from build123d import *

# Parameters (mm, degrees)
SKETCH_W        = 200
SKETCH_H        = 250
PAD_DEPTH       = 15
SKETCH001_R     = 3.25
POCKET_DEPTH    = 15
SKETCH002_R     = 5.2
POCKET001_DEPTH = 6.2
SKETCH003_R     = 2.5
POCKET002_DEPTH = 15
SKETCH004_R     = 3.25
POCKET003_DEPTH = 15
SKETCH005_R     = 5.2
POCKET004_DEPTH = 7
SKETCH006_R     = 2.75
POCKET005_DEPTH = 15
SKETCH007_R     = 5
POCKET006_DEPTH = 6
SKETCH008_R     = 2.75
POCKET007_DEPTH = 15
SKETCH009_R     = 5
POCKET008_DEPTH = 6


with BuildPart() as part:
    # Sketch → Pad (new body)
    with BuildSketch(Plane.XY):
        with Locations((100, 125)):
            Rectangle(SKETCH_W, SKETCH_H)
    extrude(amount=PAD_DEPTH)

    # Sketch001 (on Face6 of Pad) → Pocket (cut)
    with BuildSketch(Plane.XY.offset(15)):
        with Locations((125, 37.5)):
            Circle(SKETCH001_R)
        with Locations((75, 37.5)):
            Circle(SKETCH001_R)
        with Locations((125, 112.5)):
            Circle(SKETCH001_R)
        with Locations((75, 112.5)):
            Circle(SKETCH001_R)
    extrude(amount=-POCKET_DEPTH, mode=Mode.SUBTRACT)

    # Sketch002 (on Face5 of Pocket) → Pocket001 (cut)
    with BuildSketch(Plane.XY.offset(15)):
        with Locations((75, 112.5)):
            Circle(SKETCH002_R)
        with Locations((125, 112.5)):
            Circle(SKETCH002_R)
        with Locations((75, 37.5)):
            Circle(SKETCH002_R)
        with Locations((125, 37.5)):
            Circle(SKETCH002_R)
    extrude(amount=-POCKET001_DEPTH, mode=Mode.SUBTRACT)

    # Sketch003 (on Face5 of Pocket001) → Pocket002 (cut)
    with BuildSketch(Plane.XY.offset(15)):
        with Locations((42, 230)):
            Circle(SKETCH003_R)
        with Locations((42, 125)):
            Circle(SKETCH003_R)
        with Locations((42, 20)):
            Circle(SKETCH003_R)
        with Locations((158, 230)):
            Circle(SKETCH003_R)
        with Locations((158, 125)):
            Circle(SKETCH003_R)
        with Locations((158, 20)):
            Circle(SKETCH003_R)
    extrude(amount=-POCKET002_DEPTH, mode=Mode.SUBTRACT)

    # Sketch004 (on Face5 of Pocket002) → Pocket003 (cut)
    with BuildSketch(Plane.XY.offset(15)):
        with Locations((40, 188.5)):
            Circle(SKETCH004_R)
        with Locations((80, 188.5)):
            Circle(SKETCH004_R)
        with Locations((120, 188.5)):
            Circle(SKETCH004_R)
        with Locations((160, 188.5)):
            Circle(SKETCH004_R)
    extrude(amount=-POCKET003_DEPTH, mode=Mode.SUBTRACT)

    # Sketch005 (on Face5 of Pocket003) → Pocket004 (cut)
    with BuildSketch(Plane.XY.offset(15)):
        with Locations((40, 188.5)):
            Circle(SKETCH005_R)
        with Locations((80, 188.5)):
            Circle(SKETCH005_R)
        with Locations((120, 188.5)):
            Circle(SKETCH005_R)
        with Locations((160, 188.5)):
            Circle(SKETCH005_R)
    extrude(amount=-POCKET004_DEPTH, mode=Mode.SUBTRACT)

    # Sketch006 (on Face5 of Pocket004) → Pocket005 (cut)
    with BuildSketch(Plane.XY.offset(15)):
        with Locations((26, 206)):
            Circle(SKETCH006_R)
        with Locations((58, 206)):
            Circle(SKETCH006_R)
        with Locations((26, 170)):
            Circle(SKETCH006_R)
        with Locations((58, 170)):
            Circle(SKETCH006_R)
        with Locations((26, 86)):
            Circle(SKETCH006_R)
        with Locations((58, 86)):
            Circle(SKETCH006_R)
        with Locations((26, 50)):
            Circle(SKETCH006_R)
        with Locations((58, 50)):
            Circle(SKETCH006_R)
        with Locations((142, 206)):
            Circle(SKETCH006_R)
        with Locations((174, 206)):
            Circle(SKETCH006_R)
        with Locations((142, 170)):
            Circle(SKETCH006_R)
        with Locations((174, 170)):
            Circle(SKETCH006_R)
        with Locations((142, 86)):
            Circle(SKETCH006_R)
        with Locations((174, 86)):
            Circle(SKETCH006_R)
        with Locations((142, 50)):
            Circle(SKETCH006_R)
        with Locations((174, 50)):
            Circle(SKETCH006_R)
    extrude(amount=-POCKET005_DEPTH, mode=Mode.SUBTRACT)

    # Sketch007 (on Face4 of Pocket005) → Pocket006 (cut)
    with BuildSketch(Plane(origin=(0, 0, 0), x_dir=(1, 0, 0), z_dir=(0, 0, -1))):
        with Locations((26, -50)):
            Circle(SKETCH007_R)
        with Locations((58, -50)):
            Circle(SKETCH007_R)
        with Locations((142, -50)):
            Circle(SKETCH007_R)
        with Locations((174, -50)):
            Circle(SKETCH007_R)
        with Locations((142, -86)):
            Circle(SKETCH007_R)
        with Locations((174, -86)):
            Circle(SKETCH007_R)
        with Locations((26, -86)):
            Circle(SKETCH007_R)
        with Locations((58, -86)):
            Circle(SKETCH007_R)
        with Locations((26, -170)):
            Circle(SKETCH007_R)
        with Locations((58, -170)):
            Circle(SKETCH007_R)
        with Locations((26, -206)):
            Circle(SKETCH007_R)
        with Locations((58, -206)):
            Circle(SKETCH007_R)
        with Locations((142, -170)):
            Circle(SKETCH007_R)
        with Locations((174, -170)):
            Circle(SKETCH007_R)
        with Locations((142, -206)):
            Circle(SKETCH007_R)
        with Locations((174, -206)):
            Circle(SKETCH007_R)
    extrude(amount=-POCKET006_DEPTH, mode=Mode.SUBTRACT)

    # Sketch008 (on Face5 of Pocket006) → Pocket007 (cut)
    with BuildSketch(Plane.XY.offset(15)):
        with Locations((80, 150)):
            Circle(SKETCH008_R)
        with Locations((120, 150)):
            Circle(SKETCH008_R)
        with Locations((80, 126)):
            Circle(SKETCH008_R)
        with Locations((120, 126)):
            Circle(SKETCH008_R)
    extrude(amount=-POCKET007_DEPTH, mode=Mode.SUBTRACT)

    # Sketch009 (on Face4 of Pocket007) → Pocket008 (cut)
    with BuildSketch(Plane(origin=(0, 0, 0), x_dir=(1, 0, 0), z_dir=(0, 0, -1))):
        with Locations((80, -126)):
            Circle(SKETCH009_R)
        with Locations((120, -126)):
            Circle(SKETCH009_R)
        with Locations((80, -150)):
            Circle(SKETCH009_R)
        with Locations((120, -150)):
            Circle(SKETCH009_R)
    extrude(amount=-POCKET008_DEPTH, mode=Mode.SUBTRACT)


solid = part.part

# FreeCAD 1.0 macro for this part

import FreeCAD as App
import Part
import Sketcher


def add_polygon(sketch, points):
    """Adds a closed chain of lines whose ends are joined by coincident constraints."""
    first, n = sketch.GeometryCount, len(points)
    for a, b in zip(points, points[1:] + points[:1]):
        sketch.addGeometry(Part.LineSegment(App.Vector(*a, 0), App.Vector(*b, 0)), False)
    for i in range(n):
        sketch.addConstraint(Sketcher.Constraint("Coincident", first + i, 2, first + (i + 1) % n, 1))

doc = App.newDocument("Part")
body = doc.addObject("PartDesign::Body", "Body")

# Sketch on XY plane
sketch1 = doc.addObject("Sketcher::SketchObject", "Sketch")
body.addObject(sketch1)
sketch1.AttachmentSupport = (doc.XY_Plane, [""])
sketch1.MapMode = "FlatFace"
add_polygon(sketch1, [(0, 250), (0, 0), (200, 0), (200, 250)])  # lines 0-3
sketch1.addConstraint(Sketcher.Constraint("Vertical", 0))
sketch1.addConstraint(Sketcher.Constraint("Horizontal", 1))
sketch1.addConstraint(Sketcher.Constraint("Vertical", 2))
sketch1.addConstraint(Sketcher.Constraint("Horizontal", 3))
sketch1.addConstraint(Sketcher.Constraint("Coincident", 0, 2, -1, 1))
sketch1.addConstraint(Sketcher.Constraint("DistanceX", 1, 1, 1, 2, 200.0))
sketch1.addConstraint(Sketcher.Constraint("DistanceY", 0, 2, 0, 1, 250.0))
pad1 = doc.addObject("PartDesign::Pad", "Pad")
body.addObject(pad1)
pad1.Profile = sketch1
pad1.Length = 15

# Sketch on XY plane
sketch2 = doc.addObject("Sketcher::SketchObject", "Sketch001")
body.addObject(sketch2)
sketch2.AttachmentSupport = (doc.XY_Plane, [""])
sketch2.MapMode = "FlatFace"
sketch2.AttachmentOffset = App.Placement(App.Vector(0, 0, 15), App.Rotation())
sketch2.addGeometry(Part.Circle(App.Vector(125, 37.5, 0), App.Vector(0, 0, 1), 3.2), False)
sketch2.addGeometry(Part.Circle(App.Vector(75, 37.5, 0), App.Vector(0, 0, 1), 3.2), False)
sketch2.addGeometry(Part.Circle(App.Vector(125, 112.5, 0), App.Vector(0, 0, 1), 3.2), False)
sketch2.addGeometry(Part.Circle(App.Vector(75, 112.5, 0), App.Vector(0, 0, 1), 3.2), False)
sketch2.addConstraint(Sketcher.Constraint("Equal", 0, 1))
sketch2.addConstraint(Sketcher.Constraint("Equal", 1, 2))
sketch2.addConstraint(Sketcher.Constraint("Equal", 2, 3))
sketch2.addConstraint(Sketcher.Constraint("Horizontal", 0, 3, 1, 3))
sketch2.addConstraint(Sketcher.Constraint("Horizontal", 2, 3, 3, 3))
sketch2.addConstraint(Sketcher.Constraint("Vertical", 0, 3, 2, 3))
sketch2.addConstraint(Sketcher.Constraint("Vertical", 1, 3, 3, 3))
sketch2.addConstraint(Sketcher.Constraint("Diameter", 0, 6.5))
sketch2.addConstraint(Sketcher.Constraint("DistanceX", -1, 1, 0, 3, 125.0))
sketch2.addConstraint(Sketcher.Constraint("DistanceX", -1, 1, 1, 3, 75.0))
sketch2.addConstraint(Sketcher.Constraint("DistanceY", 0, 3, 2, 3, 75.0))
sketch2.addConstraint(Sketcher.Constraint("DistanceY", -1, 1, 0, 3, 37.5))
pocket1 = doc.addObject("PartDesign::Pocket", "Pocket")
body.addObject(pocket1)
pocket1.Profile = sketch2
pocket1.Length = 15

# Sketch on XY plane
sketch3 = doc.addObject("Sketcher::SketchObject", "Sketch002")
body.addObject(sketch3)
sketch3.AttachmentSupport = (doc.XY_Plane, [""])
sketch3.MapMode = "FlatFace"
sketch3.AttachmentOffset = App.Placement(App.Vector(0, 0, 15), App.Rotation())
sketch3.addGeometry(Part.Circle(App.Vector(75, 112, 0), App.Vector(0, 0, 1), 5), False)
sketch3.addGeometry(Part.Circle(App.Vector(125, 112, 0), App.Vector(0, 0, 1), 5), False)
sketch3.addGeometry(Part.Circle(App.Vector(75, 38, 0), App.Vector(0, 0, 1), 5), False)
sketch3.addGeometry(Part.Circle(App.Vector(125, 38, 0), App.Vector(0, 0, 1), 5), False)
sketch3.addConstraint(Sketcher.Constraint("Equal", 0, 1))
sketch3.addConstraint(Sketcher.Constraint("Equal", 1, 2))
sketch3.addConstraint(Sketcher.Constraint("Equal", 2, 3))
sketch3.addConstraint(Sketcher.Constraint("Horizontal", 0, 3, 1, 3))
sketch3.addConstraint(Sketcher.Constraint("Horizontal", 2, 3, 3, 3))
sketch3.addConstraint(Sketcher.Constraint("Vertical", 0, 3, 2, 3))
sketch3.addConstraint(Sketcher.Constraint("Vertical", 1, 3, 3, 3))
sketch3.addConstraint(Sketcher.Constraint("Diameter", 0, 10.4))
sketch3.addConstraint(Sketcher.Constraint("DistanceX", -1, 1, 0, 3, 75.0))
sketch3.addConstraint(Sketcher.Constraint("DistanceX", -1, 1, 1, 3, 125.0))
sketch3.addConstraint(Sketcher.Constraint("DistanceY", 2, 3, 0, 3, 75.0))
sketch3.addConstraint(Sketcher.Constraint("DistanceY", -1, 1, 0, 3, 112.5))
pocket2 = doc.addObject("PartDesign::Pocket", "Pocket001")
body.addObject(pocket2)
pocket2.Profile = sketch3
pocket2.Length = 6.2

# Sketch on XY plane
sketch4 = doc.addObject("Sketcher::SketchObject", "Sketch003")
body.addObject(sketch4)
sketch4.AttachmentSupport = (doc.XY_Plane, [""])
sketch4.MapMode = "FlatFace"
sketch4.AttachmentOffset = App.Placement(App.Vector(0, 0, 15), App.Rotation())
sketch4.addGeometry(Part.Circle(App.Vector(42, 230, 0), App.Vector(0, 0, 1), 2.5), False)
sketch4.addGeometry(Part.Circle(App.Vector(42, 125, 0), App.Vector(0, 0, 1), 2.5), False)
sketch4.addGeometry(Part.Circle(App.Vector(42, 20, 0), App.Vector(0, 0, 1), 2.5), False)
sketch4.addGeometry(Part.Circle(App.Vector(158, 230, 0), App.Vector(0, 0, 1), 2.5), False)
sketch4.addGeometry(Part.Circle(App.Vector(158, 125, 0), App.Vector(0, 0, 1), 2.5), False)
sketch4.addGeometry(Part.Circle(App.Vector(158, 20, 0), App.Vector(0, 0, 1), 2.5), False)
sketch4.addConstraint(Sketcher.Constraint("Equal", 0, 1))
sketch4.addConstraint(Sketcher.Constraint("Equal", 1, 2))
sketch4.addConstraint(Sketcher.Constraint("Equal", 2, 3))
sketch4.addConstraint(Sketcher.Constraint("Equal", 3, 4))
sketch4.addConstraint(Sketcher.Constraint("Equal", 4, 5))
sketch4.addConstraint(Sketcher.Constraint("Horizontal", 0, 3, 3, 3))
sketch4.addConstraint(Sketcher.Constraint("Horizontal", 1, 3, 4, 3))
sketch4.addConstraint(Sketcher.Constraint("Horizontal", 2, 3, 5, 3))
sketch4.addConstraint(Sketcher.Constraint("Vertical", 0, 3, 1, 3))
sketch4.addConstraint(Sketcher.Constraint("Vertical", 1, 3, 2, 3))
sketch4.addConstraint(Sketcher.Constraint("Vertical", 3, 3, 4, 3))
sketch4.addConstraint(Sketcher.Constraint("Vertical", 4, 3, 5, 3))
sketch4.addConstraint(Sketcher.Constraint("Diameter", 0, 5.0))
sketch4.addConstraint(Sketcher.Constraint("DistanceX", -1, 1, 0, 3, 42.0))
sketch4.addConstraint(Sketcher.Constraint("DistanceY", -1, 1, 0, 3, 230.0))
sketch4.addConstraint(Sketcher.Constraint("DistanceY", -1, 1, 1, 3, 125.0))
sketch4.addConstraint(Sketcher.Constraint("DistanceY", -1, 1, 2, 3, 20.0))
sketch4.addConstraint(Sketcher.Constraint("DistanceX", -1, 1, 3, 3, 158.0))
pocket3 = doc.addObject("PartDesign::Pocket", "Pocket002")
body.addObject(pocket3)
pocket3.Profile = sketch4
pocket3.Length = 15

# Sketch on XY plane
sketch5 = doc.addObject("Sketcher::SketchObject", "Sketch004")
body.addObject(sketch5)
sketch5.AttachmentSupport = (doc.XY_Plane, [""])
sketch5.MapMode = "FlatFace"
sketch5.AttachmentOffset = App.Placement(App.Vector(0, 0, 15), App.Rotation())
sketch5.addGeometry(Part.Circle(App.Vector(40, 188.5, 0), App.Vector(0, 0, 1), 3.2), False)
sketch5.addGeometry(Part.Circle(App.Vector(80, 188.5, 0), App.Vector(0, 0, 1), 3.2), False)
sketch5.addGeometry(Part.Circle(App.Vector(120, 188.5, 0), App.Vector(0, 0, 1), 3.2), False)
sketch5.addGeometry(Part.Circle(App.Vector(160, 188.5, 0), App.Vector(0, 0, 1), 3.2), False)
sketch5.addConstraint(Sketcher.Constraint("Equal", 0, 1))
sketch5.addConstraint(Sketcher.Constraint("Equal", 1, 2))
sketch5.addConstraint(Sketcher.Constraint("Equal", 2, 3))
sketch5.addConstraint(Sketcher.Constraint("Horizontal", 0, 3, 1, 3))
sketch5.addConstraint(Sketcher.Constraint("Horizontal", 1, 3, 2, 3))
sketch5.addConstraint(Sketcher.Constraint("Horizontal", 2, 3, 3, 3))
sketch5.addConstraint(Sketcher.Constraint("Diameter", 0, 6.5))
sketch5.addConstraint(Sketcher.Constraint("DistanceX", -1, 1, 0, 3, 40.0))
sketch5.addConstraint(Sketcher.Constraint("DistanceX", -1, 1, 1, 3, 80.0))
sketch5.addConstraint(Sketcher.Constraint("DistanceX", -1, 1, 2, 3, 120.0))
sketch5.addConstraint(Sketcher.Constraint("DistanceX", -1, 1, 3, 3, 160.0))
sketch5.addConstraint(Sketcher.Constraint("DistanceY", -1, 1, 0, 3, 188.5))
pocket4 = doc.addObject("PartDesign::Pocket", "Pocket003")
body.addObject(pocket4)
pocket4.Profile = sketch5
pocket4.Length = 15

# Sketch on XY plane
sketch6 = doc.addObject("Sketcher::SketchObject", "Sketch005")
body.addObject(sketch6)
sketch6.AttachmentSupport = (doc.XY_Plane, [""])
sketch6.MapMode = "FlatFace"
sketch6.AttachmentOffset = App.Placement(App.Vector(0, 0, 15), App.Rotation())
sketch6.addGeometry(Part.Circle(App.Vector(40, 188, 0), App.Vector(0, 0, 1), 5), False)
sketch6.addGeometry(Part.Circle(App.Vector(80, 188, 0), App.Vector(0, 0, 1), 5), False)
sketch6.addGeometry(Part.Circle(App.Vector(120, 188, 0), App.Vector(0, 0, 1), 5), False)
sketch6.addGeometry(Part.Circle(App.Vector(160, 188, 0), App.Vector(0, 0, 1), 5), False)
sketch6.addConstraint(Sketcher.Constraint("Equal", 0, 1))
sketch6.addConstraint(Sketcher.Constraint("Equal", 1, 2))
sketch6.addConstraint(Sketcher.Constraint("Equal", 2, 3))
sketch6.addConstraint(Sketcher.Constraint("Horizontal", 0, 3, 1, 3))
sketch6.addConstraint(Sketcher.Constraint("Horizontal", 1, 3, 2, 3))
sketch6.addConstraint(Sketcher.Constraint("Horizontal", 2, 3, 3, 3))
sketch6.addConstraint(Sketcher.Constraint("Diameter", 0, 10.4))
sketch6.addConstraint(Sketcher.Constraint("DistanceX", -1, 1, 0, 3, 40.0))
sketch6.addConstraint(Sketcher.Constraint("DistanceX", -1, 1, 1, 3, 80.0))
sketch6.addConstraint(Sketcher.Constraint("DistanceX", -1, 1, 2, 3, 120.0))
sketch6.addConstraint(Sketcher.Constraint("DistanceX", -1, 1, 3, 3, 160.0))
sketch6.addConstraint(Sketcher.Constraint("DistanceY", -1, 1, 0, 3, 188.5))
pocket5 = doc.addObject("PartDesign::Pocket", "Pocket004")
body.addObject(pocket5)
pocket5.Profile = sketch6
pocket5.Length = 7

# Sketch on XY plane
sketch7 = doc.addObject("Sketcher::SketchObject", "Sketch006")
body.addObject(sketch7)
sketch7.AttachmentSupport = (doc.XY_Plane, [""])
sketch7.MapMode = "FlatFace"
sketch7.AttachmentOffset = App.Placement(App.Vector(0, 0, 15), App.Rotation())
sketch7.addGeometry(Part.Circle(App.Vector(26, 206, 0), App.Vector(0, 0, 1), 2.8), False)
sketch7.addGeometry(Part.Circle(App.Vector(58, 206, 0), App.Vector(0, 0, 1), 2.8), False)
sketch7.addGeometry(Part.Circle(App.Vector(26, 170, 0), App.Vector(0, 0, 1), 2.8), False)
sketch7.addGeometry(Part.Circle(App.Vector(58, 170, 0), App.Vector(0, 0, 1), 2.8), False)
sketch7.addGeometry(Part.Circle(App.Vector(26, 86, 0), App.Vector(0, 0, 1), 2.8), False)
sketch7.addGeometry(Part.Circle(App.Vector(58, 86, 0), App.Vector(0, 0, 1), 2.8), False)
sketch7.addGeometry(Part.Circle(App.Vector(26, 50, 0), App.Vector(0, 0, 1), 2.8), False)
sketch7.addGeometry(Part.Circle(App.Vector(58, 50, 0), App.Vector(0, 0, 1), 2.8), False)
sketch7.addGeometry(Part.Circle(App.Vector(142, 206, 0), App.Vector(0, 0, 1), 2.8), False)
sketch7.addGeometry(Part.Circle(App.Vector(174, 206, 0), App.Vector(0, 0, 1), 2.8), False)
sketch7.addGeometry(Part.Circle(App.Vector(142, 170, 0), App.Vector(0, 0, 1), 2.8), False)
sketch7.addGeometry(Part.Circle(App.Vector(174, 170, 0), App.Vector(0, 0, 1), 2.8), False)
sketch7.addGeometry(Part.Circle(App.Vector(142, 86, 0), App.Vector(0, 0, 1), 2.8), False)
sketch7.addGeometry(Part.Circle(App.Vector(174, 86, 0), App.Vector(0, 0, 1), 2.8), False)
sketch7.addGeometry(Part.Circle(App.Vector(142, 50, 0), App.Vector(0, 0, 1), 2.8), False)
sketch7.addGeometry(Part.Circle(App.Vector(174, 50, 0), App.Vector(0, 0, 1), 2.8), False)
sketch7.addConstraint(Sketcher.Constraint("Equal", 0, 1))
sketch7.addConstraint(Sketcher.Constraint("Equal", 1, 2))
sketch7.addConstraint(Sketcher.Constraint("Equal", 2, 3))
sketch7.addConstraint(Sketcher.Constraint("Equal", 3, 4))
sketch7.addConstraint(Sketcher.Constraint("Equal", 4, 5))
sketch7.addConstraint(Sketcher.Constraint("Equal", 5, 6))
sketch7.addConstraint(Sketcher.Constraint("Equal", 6, 7))
sketch7.addConstraint(Sketcher.Constraint("Equal", 7, 8))
sketch7.addConstraint(Sketcher.Constraint("Equal", 8, 9))
sketch7.addConstraint(Sketcher.Constraint("Equal", 9, 10))
sketch7.addConstraint(Sketcher.Constraint("Equal", 10, 11))
sketch7.addConstraint(Sketcher.Constraint("Equal", 11, 12))
sketch7.addConstraint(Sketcher.Constraint("Equal", 12, 13))
sketch7.addConstraint(Sketcher.Constraint("Equal", 13, 14))
sketch7.addConstraint(Sketcher.Constraint("Equal", 14, 15))
sketch7.addConstraint(Sketcher.Constraint("Horizontal", 0, 3, 1, 3))
sketch7.addConstraint(Sketcher.Constraint("Horizontal", 2, 3, 3, 3))
sketch7.addConstraint(Sketcher.Constraint("Horizontal", 4, 3, 5, 3))
sketch7.addConstraint(Sketcher.Constraint("Horizontal", 6, 3, 7, 3))
sketch7.addConstraint(Sketcher.Constraint("Horizontal", 1, 3, 8, 3))
sketch7.addConstraint(Sketcher.Constraint("Horizontal", 8, 3, 9, 3))
sketch7.addConstraint(Sketcher.Constraint("Horizontal", 3, 3, 10, 3))
sketch7.addConstraint(Sketcher.Constraint("Horizontal", 10, 3, 11, 3))
sketch7.addConstraint(Sketcher.Constraint("Horizontal", 5, 3, 12, 3))
sketch7.addConstraint(Sketcher.Constraint("Horizontal", 12, 3, 13, 3))
sketch7.addConstraint(Sketcher.Constraint("Horizontal", 7, 3, 14, 3))
sketch7.addConstraint(Sketcher.Constraint("Horizontal", 14, 3, 15, 3))
sketch7.addConstraint(Sketcher.Constraint("Vertical", 0, 3, 2, 3))
sketch7.addConstraint(Sketcher.Constraint("Vertical", 1, 3, 3, 3))
sketch7.addConstraint(Sketcher.Constraint("Vertical", 2, 3, 4, 3))
sketch7.addConstraint(Sketcher.Constraint("Vertical", 3, 3, 5, 3))
sketch7.addConstraint(Sketcher.Constraint("Vertical", 4, 3, 6, 3))
sketch7.addConstraint(Sketcher.Constraint("Vertical", 5, 3, 7, 3))
sketch7.addConstraint(Sketcher.Constraint("Vertical", 8, 3, 10, 3))
sketch7.addConstraint(Sketcher.Constraint("Vertical", 9, 3, 11, 3))
sketch7.addConstraint(Sketcher.Constraint("Vertical", 10, 3, 12, 3))
sketch7.addConstraint(Sketcher.Constraint("Vertical", 11, 3, 13, 3))
sketch7.addConstraint(Sketcher.Constraint("Vertical", 12, 3, 14, 3))
sketch7.addConstraint(Sketcher.Constraint("Vertical", 13, 3, 15, 3))
sketch7.addConstraint(Sketcher.Constraint("Diameter", 0, 5.5))
sketch7.addConstraint(Sketcher.Constraint("DistanceX", -1, 1, 0, 3, 26.0))
sketch7.addConstraint(Sketcher.Constraint("DistanceY", -1, 1, 0, 3, 206.0))
sketch7.addConstraint(Sketcher.Constraint("DistanceX", -1, 1, 1, 3, 58.0))
sketch7.addConstraint(Sketcher.Constraint("DistanceY", -1, 1, 2, 3, 170.0))
sketch7.addConstraint(Sketcher.Constraint("DistanceY", -1, 1, 4, 3, 86.0))
sketch7.addConstraint(Sketcher.Constraint("DistanceY", -1, 1, 6, 3, 50.0))
sketch7.addConstraint(Sketcher.Constraint("DistanceX", -1, 1, 8, 3, 142.0))
sketch7.addConstraint(Sketcher.Constraint("DistanceX", -1, 1, 9, 3, 174.0))
pocket6 = doc.addObject("PartDesign::Pocket", "Pocket005")
body.addObject(pocket6)
pocket6.Profile = sketch7
pocket6.Length = 15

# Sketch on XY plane
sketch8 = doc.addObject("Sketcher::SketchObject", "Sketch007")
body.addObject(sketch8)
sketch8.AttachmentSupport = (doc.XY_Plane, [""])
sketch8.MapMode = "FlatFace"
sketch8.addGeometry(Part.Circle(App.Vector(26, 50, 0), App.Vector(0, 0, 1), 5), False)
sketch8.addGeometry(Part.Circle(App.Vector(58, 50, 0), App.Vector(0, 0, 1), 5), False)
sketch8.addGeometry(Part.Circle(App.Vector(142, 50, 0), App.Vector(0, 0, 1), 5), False)
sketch8.addGeometry(Part.Circle(App.Vector(174, 50, 0), App.Vector(0, 0, 1), 5), False)
sketch8.addGeometry(Part.Circle(App.Vector(142, 86, 0), App.Vector(0, 0, 1), 5), False)
sketch8.addGeometry(Part.Circle(App.Vector(174, 86, 0), App.Vector(0, 0, 1), 5), False)
sketch8.addGeometry(Part.Circle(App.Vector(26, 86, 0), App.Vector(0, 0, 1), 5), False)
sketch8.addGeometry(Part.Circle(App.Vector(58, 86, 0), App.Vector(0, 0, 1), 5), False)
sketch8.addGeometry(Part.Circle(App.Vector(26, 170, 0), App.Vector(0, 0, 1), 5), False)
sketch8.addGeometry(Part.Circle(App.Vector(58, 170, 0), App.Vector(0, 0, 1), 5), False)
sketch8.addGeometry(Part.Circle(App.Vector(26, 206, 0), App.Vector(0, 0, 1), 5), False)
sketch8.addGeometry(Part.Circle(App.Vector(58, 206, 0), App.Vector(0, 0, 1), 5), False)
sketch8.addGeometry(Part.Circle(App.Vector(142, 170, 0), App.Vector(0, 0, 1), 5), False)
sketch8.addGeometry(Part.Circle(App.Vector(174, 170, 0), App.Vector(0, 0, 1), 5), False)
sketch8.addGeometry(Part.Circle(App.Vector(142, 206, 0), App.Vector(0, 0, 1), 5), False)
sketch8.addGeometry(Part.Circle(App.Vector(174, 206, 0), App.Vector(0, 0, 1), 5), False)
sketch8.addConstraint(Sketcher.Constraint("Equal", 0, 1))
sketch8.addConstraint(Sketcher.Constraint("Equal", 1, 2))
sketch8.addConstraint(Sketcher.Constraint("Equal", 2, 3))
sketch8.addConstraint(Sketcher.Constraint("Equal", 3, 4))
sketch8.addConstraint(Sketcher.Constraint("Equal", 4, 5))
sketch8.addConstraint(Sketcher.Constraint("Equal", 5, 6))
sketch8.addConstraint(Sketcher.Constraint("Equal", 6, 7))
sketch8.addConstraint(Sketcher.Constraint("Equal", 7, 8))
sketch8.addConstraint(Sketcher.Constraint("Equal", 8, 9))
sketch8.addConstraint(Sketcher.Constraint("Equal", 9, 10))
sketch8.addConstraint(Sketcher.Constraint("Equal", 10, 11))
sketch8.addConstraint(Sketcher.Constraint("Equal", 11, 12))
sketch8.addConstraint(Sketcher.Constraint("Equal", 12, 13))
sketch8.addConstraint(Sketcher.Constraint("Equal", 13, 14))
sketch8.addConstraint(Sketcher.Constraint("Equal", 14, 15))
sketch8.addConstraint(Sketcher.Constraint("Horizontal", 0, 3, 1, 3))
sketch8.addConstraint(Sketcher.Constraint("Horizontal", 1, 3, 2, 3))
sketch8.addConstraint(Sketcher.Constraint("Horizontal", 2, 3, 3, 3))
sketch8.addConstraint(Sketcher.Constraint("Horizontal", 4, 3, 5, 3))
sketch8.addConstraint(Sketcher.Constraint("Horizontal", 5, 3, 6, 3))
sketch8.addConstraint(Sketcher.Constraint("Horizontal", 6, 3, 7, 3))
sketch8.addConstraint(Sketcher.Constraint("Horizontal", 8, 3, 9, 3))
sketch8.addConstraint(Sketcher.Constraint("Horizontal", 10, 3, 11, 3))
sketch8.addConstraint(Sketcher.Constraint("Horizontal", 9, 3, 12, 3))
sketch8.addConstraint(Sketcher.Constraint("Horizontal", 12, 3, 13, 3))
sketch8.addConstraint(Sketcher.Constraint("Horizontal", 11, 3, 14, 3))
sketch8.addConstraint(Sketcher.Constraint("Horizontal", 14, 3, 15, 3))
sketch8.addConstraint(Sketcher.Constraint("Vertical", 2, 3, 4, 3))
sketch8.addConstraint(Sketcher.Constraint("Vertical", 3, 3, 5, 3))
sketch8.addConstraint(Sketcher.Constraint("Vertical", 0, 3, 6, 3))
sketch8.addConstraint(Sketcher.Constraint("Vertical", 1, 3, 7, 3))
sketch8.addConstraint(Sketcher.Constraint("Vertical", 6, 3, 8, 3))
sketch8.addConstraint(Sketcher.Constraint("Vertical", 7, 3, 9, 3))
sketch8.addConstraint(Sketcher.Constraint("Vertical", 8, 3, 10, 3))
sketch8.addConstraint(Sketcher.Constraint("Vertical", 9, 3, 11, 3))
sketch8.addConstraint(Sketcher.Constraint("Vertical", 4, 3, 12, 3))
sketch8.addConstraint(Sketcher.Constraint("Vertical", 5, 3, 13, 3))
sketch8.addConstraint(Sketcher.Constraint("Vertical", 12, 3, 14, 3))
sketch8.addConstraint(Sketcher.Constraint("Vertical", 13, 3, 15, 3))
sketch8.addConstraint(Sketcher.Constraint("Diameter", 0, 10.0))
sketch8.addConstraint(Sketcher.Constraint("DistanceX", -1, 1, 0, 3, 26.0))
sketch8.addConstraint(Sketcher.Constraint("DistanceY", -1, 1, 0, 3, 50.0))
sketch8.addConstraint(Sketcher.Constraint("DistanceX", -1, 1, 1, 3, 58.0))
sketch8.addConstraint(Sketcher.Constraint("DistanceX", -1, 1, 2, 3, 142.0))
sketch8.addConstraint(Sketcher.Constraint("DistanceX", -1, 1, 3, 3, 174.0))
sketch8.addConstraint(Sketcher.Constraint("DistanceY", -1, 1, 4, 3, 86.0))
sketch8.addConstraint(Sketcher.Constraint("DistanceY", -1, 1, 8, 3, 170.0))
sketch8.addConstraint(Sketcher.Constraint("DistanceY", -1, 1, 10, 3, 206.0))
pocket7 = doc.addObject("PartDesign::Pocket", "Pocket006")
body.addObject(pocket7)
pocket7.Profile = sketch8
pocket7.Length = 6
pocket7.Reversed = True

# Sketch on XY plane
sketch9 = doc.addObject("Sketcher::SketchObject", "Sketch008")
body.addObject(sketch9)
sketch9.AttachmentSupport = (doc.XY_Plane, [""])
sketch9.MapMode = "FlatFace"
sketch9.AttachmentOffset = App.Placement(App.Vector(0, 0, 15), App.Rotation())
sketch9.addGeometry(Part.Circle(App.Vector(80, 150, 0), App.Vector(0, 0, 1), 2.8), False)
sketch9.addGeometry(Part.Circle(App.Vector(120, 150, 0), App.Vector(0, 0, 1), 2.8), False)
sketch9.addGeometry(Part.Circle(App.Vector(80, 126, 0), App.Vector(0, 0, 1), 2.8), False)
sketch9.addGeometry(Part.Circle(App.Vector(120, 126, 0), App.Vector(0, 0, 1), 2.8), False)
sketch9.addConstraint(Sketcher.Constraint("Equal", 0, 1))
sketch9.addConstraint(Sketcher.Constraint("Equal", 1, 2))
sketch9.addConstraint(Sketcher.Constraint("Equal", 2, 3))
sketch9.addConstraint(Sketcher.Constraint("Horizontal", 0, 3, 1, 3))
sketch9.addConstraint(Sketcher.Constraint("Horizontal", 2, 3, 3, 3))
sketch9.addConstraint(Sketcher.Constraint("Vertical", 0, 3, 2, 3))
sketch9.addConstraint(Sketcher.Constraint("Vertical", 1, 3, 3, 3))
sketch9.addConstraint(Sketcher.Constraint("Diameter", 0, 5.5))
sketch9.addConstraint(Sketcher.Constraint("DistanceX", -1, 1, 0, 3, 80.0))
sketch9.addConstraint(Sketcher.Constraint("DistanceY", -1, 1, 0, 3, 150.0))
sketch9.addConstraint(Sketcher.Constraint("DistanceX", -1, 1, 1, 3, 120.0))
sketch9.addConstraint(Sketcher.Constraint("DistanceY", -1, 1, 2, 3, 126.0))
pocket8 = doc.addObject("PartDesign::Pocket", "Pocket007")
body.addObject(pocket8)
pocket8.Profile = sketch9
pocket8.Length = 15

# Sketch on XY plane
sketch10 = doc.addObject("Sketcher::SketchObject", "Sketch009")
body.addObject(sketch10)
sketch10.AttachmentSupport = (doc.XY_Plane, [""])
sketch10.MapMode = "FlatFace"
sketch10.addGeometry(Part.Circle(App.Vector(80, 126, 0), App.Vector(0, 0, 1), 5), False)
sketch10.addGeometry(Part.Circle(App.Vector(120, 126, 0), App.Vector(0, 0, 1), 5), False)
sketch10.addGeometry(Part.Circle(App.Vector(80, 150, 0), App.Vector(0, 0, 1), 5), False)
sketch10.addGeometry(Part.Circle(App.Vector(120, 150, 0), App.Vector(0, 0, 1), 5), False)
sketch10.addConstraint(Sketcher.Constraint("Equal", 0, 1))
sketch10.addConstraint(Sketcher.Constraint("Equal", 1, 2))
sketch10.addConstraint(Sketcher.Constraint("Equal", 2, 3))
sketch10.addConstraint(Sketcher.Constraint("Horizontal", 0, 3, 1, 3))
sketch10.addConstraint(Sketcher.Constraint("Horizontal", 2, 3, 3, 3))
sketch10.addConstraint(Sketcher.Constraint("Vertical", 0, 3, 2, 3))
sketch10.addConstraint(Sketcher.Constraint("Vertical", 1, 3, 3, 3))
sketch10.addConstraint(Sketcher.Constraint("Diameter", 0, 10.0))
sketch10.addConstraint(Sketcher.Constraint("DistanceX", -1, 1, 0, 3, 80.0))
sketch10.addConstraint(Sketcher.Constraint("DistanceY", -1, 1, 0, 3, 126.0))
sketch10.addConstraint(Sketcher.Constraint("DistanceX", -1, 1, 1, 3, 120.0))
sketch10.addConstraint(Sketcher.Constraint("DistanceY", -1, 1, 2, 3, 150.0))
pocket9 = doc.addObject("PartDesign::Pocket", "Pocket008")
body.addObject(pocket9)
pocket9.Profile = sketch10
pocket9.Length = 6
pocket9.Reversed = True

doc.recompute()
